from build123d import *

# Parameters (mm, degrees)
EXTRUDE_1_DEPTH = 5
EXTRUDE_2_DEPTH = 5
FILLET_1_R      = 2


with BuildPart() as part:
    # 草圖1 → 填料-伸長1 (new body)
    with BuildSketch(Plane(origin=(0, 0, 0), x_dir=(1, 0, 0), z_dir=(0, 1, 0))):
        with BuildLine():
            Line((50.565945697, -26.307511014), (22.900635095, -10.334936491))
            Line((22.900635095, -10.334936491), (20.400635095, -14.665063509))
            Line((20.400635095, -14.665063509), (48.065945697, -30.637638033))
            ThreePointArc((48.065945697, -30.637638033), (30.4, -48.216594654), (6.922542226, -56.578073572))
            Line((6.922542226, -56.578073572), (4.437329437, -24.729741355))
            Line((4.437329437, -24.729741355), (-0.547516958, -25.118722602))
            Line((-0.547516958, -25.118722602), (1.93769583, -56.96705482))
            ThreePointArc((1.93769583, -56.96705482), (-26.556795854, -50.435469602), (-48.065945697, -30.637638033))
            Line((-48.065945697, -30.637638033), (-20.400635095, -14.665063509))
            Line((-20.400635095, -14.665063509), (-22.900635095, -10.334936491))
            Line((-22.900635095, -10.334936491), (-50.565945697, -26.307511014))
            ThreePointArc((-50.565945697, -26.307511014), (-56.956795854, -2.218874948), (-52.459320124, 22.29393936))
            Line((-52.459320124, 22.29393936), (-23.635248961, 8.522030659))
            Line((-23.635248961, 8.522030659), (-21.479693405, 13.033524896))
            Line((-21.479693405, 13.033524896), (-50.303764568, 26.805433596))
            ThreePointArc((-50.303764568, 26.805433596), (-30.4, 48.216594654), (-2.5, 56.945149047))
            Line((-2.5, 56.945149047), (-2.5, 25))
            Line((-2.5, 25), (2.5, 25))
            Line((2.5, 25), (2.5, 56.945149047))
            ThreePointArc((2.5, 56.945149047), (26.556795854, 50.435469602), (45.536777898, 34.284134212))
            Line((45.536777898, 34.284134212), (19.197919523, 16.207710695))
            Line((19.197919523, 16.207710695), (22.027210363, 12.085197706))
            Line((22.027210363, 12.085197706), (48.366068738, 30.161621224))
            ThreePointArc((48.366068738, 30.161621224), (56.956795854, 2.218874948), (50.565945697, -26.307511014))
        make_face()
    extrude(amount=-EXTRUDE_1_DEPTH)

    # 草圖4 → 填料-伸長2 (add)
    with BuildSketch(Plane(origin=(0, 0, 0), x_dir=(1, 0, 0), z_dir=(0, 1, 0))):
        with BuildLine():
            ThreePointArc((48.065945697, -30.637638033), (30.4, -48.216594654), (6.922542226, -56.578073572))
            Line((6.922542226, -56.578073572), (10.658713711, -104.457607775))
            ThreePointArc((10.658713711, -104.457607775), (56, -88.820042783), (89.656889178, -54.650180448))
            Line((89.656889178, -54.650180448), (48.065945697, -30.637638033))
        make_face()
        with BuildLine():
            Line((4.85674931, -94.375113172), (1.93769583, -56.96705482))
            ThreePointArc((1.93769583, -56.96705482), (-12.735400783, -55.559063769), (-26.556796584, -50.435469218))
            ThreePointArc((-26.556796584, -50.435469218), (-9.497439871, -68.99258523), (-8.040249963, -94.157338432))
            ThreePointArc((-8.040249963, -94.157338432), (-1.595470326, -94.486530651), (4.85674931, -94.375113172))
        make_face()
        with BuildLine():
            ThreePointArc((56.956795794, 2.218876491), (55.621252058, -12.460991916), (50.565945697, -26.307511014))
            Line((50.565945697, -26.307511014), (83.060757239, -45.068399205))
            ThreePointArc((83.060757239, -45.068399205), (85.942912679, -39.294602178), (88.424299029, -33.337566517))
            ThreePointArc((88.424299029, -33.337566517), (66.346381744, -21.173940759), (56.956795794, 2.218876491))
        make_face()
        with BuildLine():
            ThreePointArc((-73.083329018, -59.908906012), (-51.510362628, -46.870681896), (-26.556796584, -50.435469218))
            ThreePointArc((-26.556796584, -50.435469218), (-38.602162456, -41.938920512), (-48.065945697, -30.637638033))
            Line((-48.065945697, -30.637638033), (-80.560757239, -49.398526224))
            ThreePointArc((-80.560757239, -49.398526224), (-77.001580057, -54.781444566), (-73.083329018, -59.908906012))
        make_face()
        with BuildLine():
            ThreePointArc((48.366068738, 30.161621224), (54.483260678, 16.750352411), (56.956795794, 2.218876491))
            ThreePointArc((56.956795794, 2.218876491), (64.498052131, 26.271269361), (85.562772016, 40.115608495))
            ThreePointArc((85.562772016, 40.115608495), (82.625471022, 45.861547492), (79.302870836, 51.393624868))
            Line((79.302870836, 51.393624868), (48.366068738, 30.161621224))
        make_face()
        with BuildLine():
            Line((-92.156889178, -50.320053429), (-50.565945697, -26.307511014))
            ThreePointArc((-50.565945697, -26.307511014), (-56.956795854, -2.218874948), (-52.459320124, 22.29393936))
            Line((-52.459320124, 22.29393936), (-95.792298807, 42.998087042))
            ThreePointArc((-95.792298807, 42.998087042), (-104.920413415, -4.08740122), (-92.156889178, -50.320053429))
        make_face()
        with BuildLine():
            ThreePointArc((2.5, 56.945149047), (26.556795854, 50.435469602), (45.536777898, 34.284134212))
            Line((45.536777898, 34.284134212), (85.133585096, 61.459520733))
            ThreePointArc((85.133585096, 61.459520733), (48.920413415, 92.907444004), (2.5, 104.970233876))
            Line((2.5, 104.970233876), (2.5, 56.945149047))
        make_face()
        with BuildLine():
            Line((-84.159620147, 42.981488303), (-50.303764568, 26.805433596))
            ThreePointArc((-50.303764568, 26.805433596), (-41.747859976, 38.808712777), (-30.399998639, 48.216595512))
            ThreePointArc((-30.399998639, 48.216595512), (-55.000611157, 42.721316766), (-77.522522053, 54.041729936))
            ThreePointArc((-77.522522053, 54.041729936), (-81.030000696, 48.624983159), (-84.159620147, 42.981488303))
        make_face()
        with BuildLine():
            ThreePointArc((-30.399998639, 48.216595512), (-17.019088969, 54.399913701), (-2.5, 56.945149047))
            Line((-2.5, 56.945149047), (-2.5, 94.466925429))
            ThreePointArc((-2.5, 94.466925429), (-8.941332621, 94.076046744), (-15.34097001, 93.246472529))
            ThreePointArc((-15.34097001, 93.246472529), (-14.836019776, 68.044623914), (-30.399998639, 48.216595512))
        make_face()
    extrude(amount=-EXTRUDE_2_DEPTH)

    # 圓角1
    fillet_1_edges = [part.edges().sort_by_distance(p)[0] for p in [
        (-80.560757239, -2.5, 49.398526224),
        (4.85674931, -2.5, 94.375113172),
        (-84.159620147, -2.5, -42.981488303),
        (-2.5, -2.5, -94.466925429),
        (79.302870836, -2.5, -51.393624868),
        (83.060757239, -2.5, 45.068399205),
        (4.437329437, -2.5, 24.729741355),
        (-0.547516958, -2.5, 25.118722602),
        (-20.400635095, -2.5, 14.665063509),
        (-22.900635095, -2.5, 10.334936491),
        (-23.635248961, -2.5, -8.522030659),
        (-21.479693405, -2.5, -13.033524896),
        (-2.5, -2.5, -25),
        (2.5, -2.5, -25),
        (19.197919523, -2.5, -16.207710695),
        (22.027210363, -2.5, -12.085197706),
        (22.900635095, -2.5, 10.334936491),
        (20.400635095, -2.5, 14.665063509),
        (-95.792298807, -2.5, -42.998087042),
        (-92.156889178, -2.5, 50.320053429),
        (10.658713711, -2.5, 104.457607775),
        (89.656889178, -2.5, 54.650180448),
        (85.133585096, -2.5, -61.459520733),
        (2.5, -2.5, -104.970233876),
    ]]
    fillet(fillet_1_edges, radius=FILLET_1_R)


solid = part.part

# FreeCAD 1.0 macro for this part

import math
import FreeCAD as App
import Part
import Sketcher
Q = App.Units.Quantity


def edges_at(feature, points):
    """Names of the edges that pass closest to the given points."""
    edges = feature.Shape.Edges
    near = lambda p: min(range(len(edges)), key=lambda i: edges[i].distToShape(Part.Vertex(*p))[0])
    return sorted({f"Edge{near(p) + 1}" for p in points})

doc = App.newDocument("Part")
body = doc.addObject("PartDesign::Body", "Body")

# Sketch on XZ plane
sketch1 = body.newObject("Sketcher::SketchObject", "Sketch")
sketch1.AttachmentSupport = (doc.getObject("XZ_Plane"), [""])
sketch1.MapMode = "FlatFace"
sketch1.addGeometry([
    Part.LineSegment(App.Vector(22.9, 10.3, 0), App.Vector(50.6, 26.3, 0)),  # 0
    Part.ArcOfCircle(Part.Circle(App.Vector(0, 0, 0), App.Vector(0, 0, 1), 57), math.radians(-32), math.radians(27)),  # 1
    Part.LineSegment(App.Vector(48.4, -30.2, 0), App.Vector(22, -12.1, 0)),  # 2
    Part.LineSegment(App.Vector(22, -12.1, 0), App.Vector(19.2, -16.2, 0)),  # 3
    Part.LineSegment(App.Vector(19.2, -16.2, 0), App.Vector(45.5, -34.3, 0)),  # 4
    Part.ArcOfCircle(Part.Circle(App.Vector(0, 0, 0), App.Vector(0, 0, 1), 57), math.radians(-87), math.radians(-37)),  # 5
    Part.LineSegment(App.Vector(2.5, -56.9, 0), App.Vector(2.5, -25, 0)),  # 6
    Part.LineSegment(App.Vector(2.5, -25, 0), App.Vector(-2.5, -25, 0)),  # 7
    Part.LineSegment(App.Vector(-2.5, -25, 0), App.Vector(-2.5, -56.9, 0)),  # 8
    Part.ArcOfCircle(Part.Circle(App.Vector(0, 0, 0), App.Vector(0, 0, 1), 57), math.radians(-152), math.radians(-93)),  # 9
    Part.LineSegment(App.Vector(-50.3, -26.8, 0), App.Vector(-21.5, -13, 0)),  # 10
    Part.LineSegment(App.Vector(-21.5, -13, 0), App.Vector(-23.6, -8.5, 0)),  # 11
    Part.LineSegment(App.Vector(-23.6, -8.5, 0), App.Vector(-52.5, -22.3, 0)),  # 12
    Part.ArcOfCircle(Part.Circle(App.Vector(0, 0, 0), App.Vector(0, 0, 1), 57), math.radians(153), math.radians(203)),  # 13
    Part.LineSegment(App.Vector(-50.6, 26.3, 0), App.Vector(-22.9, 10.3, 0)),  # 14
    Part.LineSegment(App.Vector(-22.9, 10.3, 0), App.Vector(-20.4, 14.7, 0)),  # 15
    Part.LineSegment(App.Vector(-20.4, 14.7, 0), App.Vector(-48.1, 30.6, 0)),  # 16
    Part.ArcOfCircle(Part.Circle(App.Vector(0, 0, 0), App.Vector(0, 0, 1), 57), math.radians(88), math.radians(147)),  # 17
    Part.LineSegment(App.Vector(1.9, 57, 0), App.Vector(-0.5, 25.1, 0)),  # 18
    Part.LineSegment(App.Vector(-0.5, 25.1, 0), App.Vector(4.4, 24.7, 0)),  # 19
    Part.LineSegment(App.Vector(4.4, 24.7, 0), App.Vector(6.9, 56.6, 0)),  # 20
    Part.ArcOfCircle(Part.Circle(App.Vector(0, 0, 0), App.Vector(0, 0, 1), 57), math.radians(33), math.radians(83)),  # 21
    Part.LineSegment(App.Vector(48.1, 30.6, 0), App.Vector(20.4, 14.7, 0)),  # 22
    Part.LineSegment(App.Vector(20.4, 14.7, 0), App.Vector(22.9, 10.3, 0)),  # 23
], False)
sketch1.addConstraint([
    Sketcher.Constraint("Coincident", 0, 2, 1, 2),
    Sketcher.Constraint("Coincident", 1, 1, 2, 1),
    Sketcher.Constraint("Coincident", 2, 2, 3, 1),
    Sketcher.Constraint("Coincident", 3, 2, 4, 1),
    Sketcher.Constraint("Coincident", 4, 2, 5, 2),
    Sketcher.Constraint("Coincident", 5, 1, 6, 1),
    Sketcher.Constraint("Coincident", 6, 2, 7, 1),
    Sketcher.Constraint("Coincident", 7, 2, 8, 1),
    Sketcher.Constraint("Coincident", 8, 2, 9, 2),
    Sketcher.Constraint("Coincident", 9, 1, 10, 1),
    Sketcher.Constraint("Coincident", 10, 2, 11, 1),
    Sketcher.Constraint("Coincident", 11, 2, 12, 1),
    Sketcher.Constraint("Coincident", 12, 2, 13, 2),
    Sketcher.Constraint("Coincident", 13, 1, 14, 1),
    Sketcher.Constraint("Coincident", 14, 2, 15, 1),
    Sketcher.Constraint("Coincident", 15, 2, 16, 1),
    Sketcher.Constraint("Coincident", 16, 2, 17, 2),
    Sketcher.Constraint("Coincident", 17, 1, 18, 1),
    Sketcher.Constraint("Coincident", 18, 2, 19, 1),
    Sketcher.Constraint("Coincident", 19, 2, 20, 1),
    Sketcher.Constraint("Coincident", 20, 2, 21, 2),
    Sketcher.Constraint("Coincident", 21, 1, 22, 1),
    Sketcher.Constraint("Coincident", 22, 2, 23, 1),
    Sketcher.Constraint("Coincident", 23, 2, 0, 1),
    Sketcher.Constraint("Vertical", 6),
    Sketcher.Constraint("Horizontal", 7),
    Sketcher.Constraint("Vertical", 8),
    Sketcher.Constraint("Coincident", 1, 3, -1, 1),
    Sketcher.Constraint("Coincident", 5, 3, -1, 1),
    Sketcher.Constraint("Coincident", 9, 3, -1, 1),
    Sketcher.Constraint("Coincident", 13, 3, -1, 1),
    Sketcher.Constraint("Coincident", 17, 3, -1, 1),
    Sketcher.Constraint("Coincident", 21, 3, -1, 1),
    Sketcher.Constraint("Equal", 1, 5),
    Sketcher.Constraint("Equal", 5, 9),
    Sketcher.Constraint("Equal", 9, 13),
    Sketcher.Constraint("Equal", 13, 17),
    Sketcher.Constraint("Equal", 17, 21),
    Sketcher.Constraint("Symmetric", 15, 2, 22, 2, -2),
    Sketcher.Constraint("Symmetric", 14, 2, 23, 2, -2),
    Sketcher.Constraint("Perpendicular", 2, 3),
    Sketcher.Constraint("Perpendicular", 3, 4),
    Sketcher.Constraint("Perpendicular", 10, 11),
    Sketcher.Constraint("Perpendicular", 11, 12),
    Sketcher.Constraint("Perpendicular", 14, 15),
    Sketcher.Constraint("Perpendicular", 15, 16),
    Sketcher.Constraint("Perpendicular", 18, 19),
    Sketcher.Constraint("Perpendicular", 19, 20),
    Sketcher.Constraint("Parallel", 0, 22),
    Sketcher.Constraint("Perpendicular", 22, 23),
    Sketcher.Constraint("Horizontal", 5, 1, 8, 2),
    Sketcher.Constraint("Equal", 0, 2),
    Sketcher.Constraint("Equal", 2, 4),
    Sketcher.Constraint("Equal", 4, 10),
    Sketcher.Constraint("Equal", 3, 11),
    Sketcher.Constraint("Equal", 10, 12),
    Sketcher.Constraint("Equal", 11, 15),
    Sketcher.Constraint("Equal", 14, 16),
    Sketcher.Constraint("Equal", 16, 18),
    Sketcher.Constraint("Equal", 15, 19),
    Sketcher.Constraint("Equal", 18, 20),
    Sketcher.Constraint("Radius", 1, Q("57 mm")),
    Sketcher.Constraint("DistanceX", 7, 2, 7, 1, Q("5 mm")),
    Sketcher.Constraint("Angle", 0, Q("30 deg")),
    Sketcher.Constraint("Distance", 3, Q("5 mm")),
    Sketcher.Constraint("DistanceY", 6, 2, -1, 1, Q("25 mm")),
    Sketcher.Constraint("DistanceY", 14, 2, 16, 2, Q("20.302702 mm")),
    Sketcher.Constraint("DistanceX", -1, 1, 1, 1, Q("48.366069 mm")),
    Sketcher.Constraint("DistanceX", 11, 2, -1, 1, Q("23.635249 mm")),
    Sketcher.Constraint("DistanceX", -1, 1, 19, 2, Q("4.437329 mm")),
])
pad1 = body.newObject("PartDesign::Pad", "Pad")
pad1.Profile = sketch1
pad1.Length = 5

# Sketch on XZ plane
sketch2 = body.newObject("Sketcher::SketchObject", "Sketch001")
sketch2.AttachmentSupport = (doc.getObject("XZ_Plane"), [""])
sketch2.MapMode = "FlatFace"
sketch2.addGeometry([
    Part.ArcOfCircle(Part.Circle(App.Vector(0, 0, 0), App.Vector(0, 0, 1), 57), math.radians(33), math.radians(83)),  # 0
    Part.LineSegment(App.Vector(7, 57, 0), App.Vector(11, 104, 0)),  # 1
    Part.ArcOfCircle(Part.Circle(App.Vector(0, 0, 0), App.Vector(0, 0, 1), 105), math.radians(31), math.radians(84)),  # 2
    Part.LineSegment(App.Vector(90, 55, 0), App.Vector(48, 31, 0)),  # 3
    Part.LineSegment(App.Vector(5, 94, 0), App.Vector(2, 57, 0)),  # 4
    Part.ArcOfCircle(Part.Circle(App.Vector(0, 0, 0), App.Vector(0, 0, 1), 57), math.radians(88), math.radians(118)),  # 5
    Part.ArcOfCircle(Part.Circle(App.Vector(-44, 84, 0), App.Vector(0, 0, 1), 37), math.radians(-62), math.radians(16)),  # 6
    Part.ArcOfCircle(Part.Circle(App.Vector(0, 0, 0), App.Vector(0, 0, 1), 95), math.radians(87.05), math.radians(94.88)),  # 7
    Part.ArcOfCircle(Part.Circle(App.Vector(0, 0, 0), App.Vector(0, 0, 1), 57), math.radians(-2), math.radians(27)),  # 8
    Part.LineSegment(App.Vector(51, 26, 0), App.Vector(83, 45, 0)),  # 9
    Part.ArcOfCircle(Part.Circle(App.Vector(0, 0, 0), App.Vector(0, 0, 1), 94), math.radians(20.66), math.radians(28.48)),  # 10
    Part.ArcOfCircle(Part.Circle(App.Vector(94, -4, 0), App.Vector(0, 0, 1), 38), math.radians(99), math.radians(178)),  # 11
    Part.ArcOfCircle(Part.Circle(App.Vector(-44, 84, 0), App.Vector(0, 0, 1), 37), math.radians(-141), math.radians(-62)),  # 12
    Part.ArcOfCircle(Part.Circle(App.Vector(0, 0, 0), App.Vector(0, 0, 1), 57), math.radians(118), math.radians(147)),  # 13
    Part.LineSegment(App.Vector(-48, 31, 0), App.Vector(-81, 49, 0)),  # 14
    Part.ArcOfCircle(Part.Circle(App.Vector(0, 0, 0), App.Vector(0, 0, 1), 94), math.radians(140.66), math.radians(148.48)),  # 15
    Part.ArcOfCircle(Part.Circle(App.Vector(0, 0, 0), App.Vector(0, 0, 1), 57), math.radians(-32), math.radians(-2)),  # 16
    Part.ArcOfCircle(Part.Circle(App.Vector(94, -4, 0), App.Vector(0, 0, 1), 37), math.radians(178), math.radians(256)),  # 17
    Part.ArcOfCircle(Part.Circle(App.Vector(0, 0, 0), App.Vector(0, 0, 1), 94), math.radians(-32.95), math.radians(-25.12)),  # 18
    Part.LineSegment(App.Vector(79, -51, 0), App.Vector(48, -30, 0)),  # 19
    Part.LineSegment(App.Vector(-92, 50, 0), App.Vector(-51, 26, 0)),  # 20
    Part.ArcOfCircle(Part.Circle(App.Vector(0, 0, 0), App.Vector(0, 0, 1), 57), math.radians(153), math.radians(203)),  # 21
    Part.LineSegment(App.Vector(-52, -22, 0), App.Vector(-96, -43, 0)),  # 22
    Part.ArcOfCircle(Part.Circle(App.Vector(0, 0, 0), App.Vector(0, 0, 1), 105), math.radians(151), math.radians(204)),  # 23
    Part.ArcOfCircle(Part.Circle(App.Vector(0, 0, 0), App.Vector(0, 0, 1), 57), math.radians(-87), math.radians(-37)),  # 24
    Part.LineSegment(App.Vector(46, -34, 0), App.Vector(85, -61, 0)),  # 25
    Part.ArcOfCircle(Part.Circle(App.Vector(0, 0, 0), App.Vector(0, 0, 1), 105), math.radians(-89), math.radians(-36)),  # 26
    Part.LineSegment(App.Vector(2, -105, 0), App.Vector(2, -57, 0)),  # 27
    Part.LineSegment(App.Vector(-84, -43, 0), App.Vector(-50, -27, 0)),  # 28
    Part.ArcOfCircle(Part.Circle(App.Vector(0, 0, 0), App.Vector(0, 0, 1), 57), math.radians(-152), math.radians(-122)),  # 29
    Part.ArcOfCircle(Part.Circle(App.Vector(-50, -80, 0), App.Vector(0, 0, 1), 38), math.radians(58), math.radians(136)),  # 30
    Part.ArcOfCircle(Part.Circle(App.Vector(0, 0, 0), App.Vector(0, 0, 1), 94), math.radians(-152.95), math.radians(-145.12)),  # 31
    Part.ArcOfCircle(Part.Circle(App.Vector(0, 0, 0), App.Vector(0, 0, 1), 57), math.radians(-122), math.radians(-93)),  # 32
    Part.LineSegment(App.Vector(-2, -57, 0), App.Vector(-2, -94, 0)),  # 33
    Part.ArcOfCircle(Part.Circle(App.Vector(0, 0, 0), App.Vector(0, 0, 1), 94), math.radians(-99.34), math.radians(-91.52)),  # 34
    Part.ArcOfCircle(Part.Circle(App.Vector(-50, -80, 0), App.Vector(0, 0, 1), 38), math.radians(-21), math.radians(58)),  # 35
], False)
sketch2.addConstraint([
    Sketcher.Constraint("Coincident", 0, 2, 1, 1),
    Sketcher.Constraint("Coincident", 1, 2, 2, 2),
    Sketcher.Constraint("Coincident", 2, 1, 3, 1),
    Sketcher.Constraint("Coincident", 3, 2, 0, 1),
    Sketcher.Constraint("Coincident", 4, 2, 5, 1),
    Sketcher.Constraint("Tangent", 5, 2, 6, 1),
    Sketcher.Constraint("Coincident", 6, 2, 7, 2),
    Sketcher.Constraint("Coincident", 7, 1, 4, 1),
    Sketcher.Constraint("Coincident", 8, 2, 9, 1),
    Sketcher.Constraint("Coincident", 9, 2, 10, 2),
    Sketcher.Constraint("Coincident", 10, 1, 11, 1),
    Sketcher.Constraint("Tangent", 11, 2, 8, 1),
    Sketcher.Constraint("Tangent", 12, 2, 13, 1),
    Sketcher.Constraint("Coincident", 13, 2, 14, 1),
    Sketcher.Constraint("Coincident", 14, 2, 15, 2),
    Sketcher.Constraint("Coincident", 15, 1, 12, 1),
    Sketcher.Constraint("Tangent", 16, 2, 17, 1),
    Sketcher.Constraint("Coincident", 17, 2, 18, 2),
    Sketcher.Constraint("Coincident", 18, 1, 19, 1),
    Sketcher.Constraint("Coincident", 19, 2, 16, 1),
    Sketcher.Constraint("Coincident", 20, 2, 21, 1),
    Sketcher.Constraint("Coincident", 21, 2, 22, 1),
    Sketcher.Constraint("Coincident", 22, 2, 23, 2),
    Sketcher.Constraint("Coincident", 23, 1, 20, 1),
    Sketcher.Constraint("Coincident", 24, 2, 25, 1),
    Sketcher.Constraint("Coincident", 25, 2, 26, 2),
    Sketcher.Constraint("Coincident", 26, 1, 27, 1),
    Sketcher.Constraint("Coincident", 27, 2, 24, 1),
    Sketcher.Constraint("Coincident", 28, 2, 29, 1),
    Sketcher.Constraint("Tangent", 29, 2, 30, 1),
    Sketcher.Constraint("Coincident", 30, 2, 31, 2),
    Sketcher.Constraint("Coincident", 31, 1, 28, 1),
    Sketcher.Constraint("Coincident", 32, 2, 33, 1),
    Sketcher.Constraint("Coincident", 33, 2, 34, 2),
    Sketcher.Constraint("Coincident", 34, 1, 35, 1),
    Sketcher.Constraint("Tangent", 35, 2, 32, 1),
    Sketcher.Constraint("Vertical", 27),
    Sketcher.Constraint("Vertical", 33),
    Sketcher.Constraint("Coincident", 0, 3, -1, 1),
    Sketcher.Constraint("Coincident", 2, 3, -1, 1),
    Sketcher.Constraint("Coincident", 5, 3, -1, 1),
    Sketcher.Constraint("Coincident", 7, 3, -1, 1),
    Sketcher.Constraint("Coincident", 8, 3, -1, 1),
    Sketcher.Constraint("Coincident", 10, 3, -1, 1),
    Sketcher.Constraint("Coincident", 13, 3, -1, 1),
    Sketcher.Constraint("Coincident", 15, 3, -1, 1),
    Sketcher.Constraint("Coincident", 16, 3, -1, 1),
    Sketcher.Constraint("Coincident", 18, 3, -1, 1),
    Sketcher.Constraint("Coincident", 21, 3, -1, 1),
    Sketcher.Constraint("Coincident", 23, 3, -1, 1),
    Sketcher.Constraint("Coincident", 24, 3, -1, 1),
    Sketcher.Constraint("Coincident", 26, 3, -1, 1),
    Sketcher.Constraint("Coincident", 29, 3, -1, 1),
    Sketcher.Constraint("Coincident", 31, 3, -1, 1),
    Sketcher.Constraint("Coincident", 32, 3, -1, 1),
    Sketcher.Constraint("Coincident", 34, 3, -1, 1),
    Sketcher.Constraint("Coincident", 12, 3, 6, 3),
    Sketcher.Constraint("Coincident", 17, 3, 11, 3),
    Sketcher.Constraint("Coincident", 35, 3, 30, 3),
    Sketcher.Constraint("Equal", 0, 5),
    Sketcher.Constraint("Equal", 5, 8),
    Sketcher.Constraint("Equal", 7, 10),
    Sketcher.Constraint("Equal", 6, 11),
    Sketcher.Constraint("Equal", 11, 12),
    Sketcher.Constraint("Equal", 10, 15),
    Sketcher.Constraint("Equal", 13, 16),
    Sketcher.Constraint("Equal", 15, 18),
    Sketcher.Constraint("Equal", 16, 21),
    Sketcher.Constraint("Equal", 2, 23),
    Sketcher.Constraint("Equal", 21, 24),
    Sketcher.Constraint("Equal", 23, 26),
    Sketcher.Constraint("Equal", 24, 29),
    Sketcher.Constraint("Equal", 17, 30),
    Sketcher.Constraint("Equal", 18, 31),
    Sketcher.Constraint("Equal", 29, 32),
    Sketcher.Constraint("Equal", 31, 34),
    Sketcher.Constraint("Parallel", 1, 4),
    Sketcher.Constraint("Parallel", 3, 9),
    Sketcher.Constraint("Parallel", 14, 20),
    Sketcher.Constraint("Parallel", 19, 25),
    Sketcher.Constraint("Parallel", 22, 28),
    Sketcher.Constraint("Horizontal", 3, 2, 13, 2),
    Sketcher.Constraint("Horizontal", 8, 2, 20, 2),
    Sketcher.Constraint("Horizontal", 27, 2, 32, 2),
    Sketcher.Constraint("Equal", 1, 3),
    Sketcher.Constraint("Equal", 4, 9),
    Sketcher.Constraint("Equal", 9, 14),
    Sketcher.Constraint("Equal", 14, 19),
    Sketcher.Constraint("Equal", 20, 22),
    Sketcher.Constraint("Equal", 22, 25),
    Sketcher.Constraint("Equal", 19, 28),
    Sketcher.Constraint("Radius", 0, Q("57 mm")),
    Sketcher.Constraint("Radius", 2, Q("105 mm")),
    Sketcher.Constraint("Radius", 6, Q("37.5 mm")),
    Sketcher.Constraint("Radius", 7, Q("94.5 mm")),
    Sketcher.Constraint("Angle", 3, Q("-150 deg")),
    Sketcher.Constraint("Angle", 14, Q("150 deg")),
    Sketcher.Constraint("DistanceX", 30, 3, 29, 2, Q("20.000001 mm")),
    Sketcher.Constraint("DistanceX", 32, 2, 27, 2, Q("5 mm")),
    Sketcher.Constraint("DistanceX", 3, 2, 8, 2, Q("2.5 mm")),
    Sketcher.Constraint("DistanceX", 6, 2, 7, 1, Q("12.896999 mm")),
    Sketcher.Constraint("DistanceY", -1, 1, 6, 3, Q("83.6167 mm")),
    Sketcher.Constraint("DistanceX", -1, 1, 10, 1, Q("88.424299 mm")),
    Sketcher.Constraint("DistanceX", 22, 2, -1, 1, Q("95.792299 mm")),
    Sketcher.Constraint("DistanceX", 18, 1, 17, 2, Q("6.259901 mm")),
])
pad2 = body.newObject("PartDesign::Pad", "Pad001")
pad2.Profile = sketch2
pad2.Length = 5
doc.recompute()

fillet = body.newObject("PartDesign::Fillet", "Fillet")
fillet.Base = (pad2, edges_at(pad2, [
    (-80.561, -2.5, 49.399),
    (4.857, -2.5, 94.375),
    (-84.16, -2.5, -42.981),
    (-2.5, -2.5, -94.467),
    (79.303, -2.5, -51.394),
    (83.061, -2.5, 45.068),
    (4.437, -2.5, 24.73),
    (-0.548, -2.5, 25.119),
    (-20.401, -2.5, 14.665),
    (-22.901, -2.5, 10.335),
    (-23.635, -2.5, -8.522),
    (-21.48, -2.5, -13.034),
    (-2.5, -2.5, -25),
    (2.5, -2.5, -25),
    (19.198, -2.5, -16.208),
    (22.027, -2.5, -12.085),
    (22.901, -2.5, 10.335),
    (20.401, -2.5, 14.665),
    (-95.792, -2.5, -42.998),
    (-92.157, -2.5, 50.32),
    (10.659, -2.5, 104.458),
    (89.657, -2.5, 54.65),
    (85.134, -2.5, -61.46),
    (2.5, -2.5, -104.97),
]))
fillet.Radius = 2

doc.recompute()
